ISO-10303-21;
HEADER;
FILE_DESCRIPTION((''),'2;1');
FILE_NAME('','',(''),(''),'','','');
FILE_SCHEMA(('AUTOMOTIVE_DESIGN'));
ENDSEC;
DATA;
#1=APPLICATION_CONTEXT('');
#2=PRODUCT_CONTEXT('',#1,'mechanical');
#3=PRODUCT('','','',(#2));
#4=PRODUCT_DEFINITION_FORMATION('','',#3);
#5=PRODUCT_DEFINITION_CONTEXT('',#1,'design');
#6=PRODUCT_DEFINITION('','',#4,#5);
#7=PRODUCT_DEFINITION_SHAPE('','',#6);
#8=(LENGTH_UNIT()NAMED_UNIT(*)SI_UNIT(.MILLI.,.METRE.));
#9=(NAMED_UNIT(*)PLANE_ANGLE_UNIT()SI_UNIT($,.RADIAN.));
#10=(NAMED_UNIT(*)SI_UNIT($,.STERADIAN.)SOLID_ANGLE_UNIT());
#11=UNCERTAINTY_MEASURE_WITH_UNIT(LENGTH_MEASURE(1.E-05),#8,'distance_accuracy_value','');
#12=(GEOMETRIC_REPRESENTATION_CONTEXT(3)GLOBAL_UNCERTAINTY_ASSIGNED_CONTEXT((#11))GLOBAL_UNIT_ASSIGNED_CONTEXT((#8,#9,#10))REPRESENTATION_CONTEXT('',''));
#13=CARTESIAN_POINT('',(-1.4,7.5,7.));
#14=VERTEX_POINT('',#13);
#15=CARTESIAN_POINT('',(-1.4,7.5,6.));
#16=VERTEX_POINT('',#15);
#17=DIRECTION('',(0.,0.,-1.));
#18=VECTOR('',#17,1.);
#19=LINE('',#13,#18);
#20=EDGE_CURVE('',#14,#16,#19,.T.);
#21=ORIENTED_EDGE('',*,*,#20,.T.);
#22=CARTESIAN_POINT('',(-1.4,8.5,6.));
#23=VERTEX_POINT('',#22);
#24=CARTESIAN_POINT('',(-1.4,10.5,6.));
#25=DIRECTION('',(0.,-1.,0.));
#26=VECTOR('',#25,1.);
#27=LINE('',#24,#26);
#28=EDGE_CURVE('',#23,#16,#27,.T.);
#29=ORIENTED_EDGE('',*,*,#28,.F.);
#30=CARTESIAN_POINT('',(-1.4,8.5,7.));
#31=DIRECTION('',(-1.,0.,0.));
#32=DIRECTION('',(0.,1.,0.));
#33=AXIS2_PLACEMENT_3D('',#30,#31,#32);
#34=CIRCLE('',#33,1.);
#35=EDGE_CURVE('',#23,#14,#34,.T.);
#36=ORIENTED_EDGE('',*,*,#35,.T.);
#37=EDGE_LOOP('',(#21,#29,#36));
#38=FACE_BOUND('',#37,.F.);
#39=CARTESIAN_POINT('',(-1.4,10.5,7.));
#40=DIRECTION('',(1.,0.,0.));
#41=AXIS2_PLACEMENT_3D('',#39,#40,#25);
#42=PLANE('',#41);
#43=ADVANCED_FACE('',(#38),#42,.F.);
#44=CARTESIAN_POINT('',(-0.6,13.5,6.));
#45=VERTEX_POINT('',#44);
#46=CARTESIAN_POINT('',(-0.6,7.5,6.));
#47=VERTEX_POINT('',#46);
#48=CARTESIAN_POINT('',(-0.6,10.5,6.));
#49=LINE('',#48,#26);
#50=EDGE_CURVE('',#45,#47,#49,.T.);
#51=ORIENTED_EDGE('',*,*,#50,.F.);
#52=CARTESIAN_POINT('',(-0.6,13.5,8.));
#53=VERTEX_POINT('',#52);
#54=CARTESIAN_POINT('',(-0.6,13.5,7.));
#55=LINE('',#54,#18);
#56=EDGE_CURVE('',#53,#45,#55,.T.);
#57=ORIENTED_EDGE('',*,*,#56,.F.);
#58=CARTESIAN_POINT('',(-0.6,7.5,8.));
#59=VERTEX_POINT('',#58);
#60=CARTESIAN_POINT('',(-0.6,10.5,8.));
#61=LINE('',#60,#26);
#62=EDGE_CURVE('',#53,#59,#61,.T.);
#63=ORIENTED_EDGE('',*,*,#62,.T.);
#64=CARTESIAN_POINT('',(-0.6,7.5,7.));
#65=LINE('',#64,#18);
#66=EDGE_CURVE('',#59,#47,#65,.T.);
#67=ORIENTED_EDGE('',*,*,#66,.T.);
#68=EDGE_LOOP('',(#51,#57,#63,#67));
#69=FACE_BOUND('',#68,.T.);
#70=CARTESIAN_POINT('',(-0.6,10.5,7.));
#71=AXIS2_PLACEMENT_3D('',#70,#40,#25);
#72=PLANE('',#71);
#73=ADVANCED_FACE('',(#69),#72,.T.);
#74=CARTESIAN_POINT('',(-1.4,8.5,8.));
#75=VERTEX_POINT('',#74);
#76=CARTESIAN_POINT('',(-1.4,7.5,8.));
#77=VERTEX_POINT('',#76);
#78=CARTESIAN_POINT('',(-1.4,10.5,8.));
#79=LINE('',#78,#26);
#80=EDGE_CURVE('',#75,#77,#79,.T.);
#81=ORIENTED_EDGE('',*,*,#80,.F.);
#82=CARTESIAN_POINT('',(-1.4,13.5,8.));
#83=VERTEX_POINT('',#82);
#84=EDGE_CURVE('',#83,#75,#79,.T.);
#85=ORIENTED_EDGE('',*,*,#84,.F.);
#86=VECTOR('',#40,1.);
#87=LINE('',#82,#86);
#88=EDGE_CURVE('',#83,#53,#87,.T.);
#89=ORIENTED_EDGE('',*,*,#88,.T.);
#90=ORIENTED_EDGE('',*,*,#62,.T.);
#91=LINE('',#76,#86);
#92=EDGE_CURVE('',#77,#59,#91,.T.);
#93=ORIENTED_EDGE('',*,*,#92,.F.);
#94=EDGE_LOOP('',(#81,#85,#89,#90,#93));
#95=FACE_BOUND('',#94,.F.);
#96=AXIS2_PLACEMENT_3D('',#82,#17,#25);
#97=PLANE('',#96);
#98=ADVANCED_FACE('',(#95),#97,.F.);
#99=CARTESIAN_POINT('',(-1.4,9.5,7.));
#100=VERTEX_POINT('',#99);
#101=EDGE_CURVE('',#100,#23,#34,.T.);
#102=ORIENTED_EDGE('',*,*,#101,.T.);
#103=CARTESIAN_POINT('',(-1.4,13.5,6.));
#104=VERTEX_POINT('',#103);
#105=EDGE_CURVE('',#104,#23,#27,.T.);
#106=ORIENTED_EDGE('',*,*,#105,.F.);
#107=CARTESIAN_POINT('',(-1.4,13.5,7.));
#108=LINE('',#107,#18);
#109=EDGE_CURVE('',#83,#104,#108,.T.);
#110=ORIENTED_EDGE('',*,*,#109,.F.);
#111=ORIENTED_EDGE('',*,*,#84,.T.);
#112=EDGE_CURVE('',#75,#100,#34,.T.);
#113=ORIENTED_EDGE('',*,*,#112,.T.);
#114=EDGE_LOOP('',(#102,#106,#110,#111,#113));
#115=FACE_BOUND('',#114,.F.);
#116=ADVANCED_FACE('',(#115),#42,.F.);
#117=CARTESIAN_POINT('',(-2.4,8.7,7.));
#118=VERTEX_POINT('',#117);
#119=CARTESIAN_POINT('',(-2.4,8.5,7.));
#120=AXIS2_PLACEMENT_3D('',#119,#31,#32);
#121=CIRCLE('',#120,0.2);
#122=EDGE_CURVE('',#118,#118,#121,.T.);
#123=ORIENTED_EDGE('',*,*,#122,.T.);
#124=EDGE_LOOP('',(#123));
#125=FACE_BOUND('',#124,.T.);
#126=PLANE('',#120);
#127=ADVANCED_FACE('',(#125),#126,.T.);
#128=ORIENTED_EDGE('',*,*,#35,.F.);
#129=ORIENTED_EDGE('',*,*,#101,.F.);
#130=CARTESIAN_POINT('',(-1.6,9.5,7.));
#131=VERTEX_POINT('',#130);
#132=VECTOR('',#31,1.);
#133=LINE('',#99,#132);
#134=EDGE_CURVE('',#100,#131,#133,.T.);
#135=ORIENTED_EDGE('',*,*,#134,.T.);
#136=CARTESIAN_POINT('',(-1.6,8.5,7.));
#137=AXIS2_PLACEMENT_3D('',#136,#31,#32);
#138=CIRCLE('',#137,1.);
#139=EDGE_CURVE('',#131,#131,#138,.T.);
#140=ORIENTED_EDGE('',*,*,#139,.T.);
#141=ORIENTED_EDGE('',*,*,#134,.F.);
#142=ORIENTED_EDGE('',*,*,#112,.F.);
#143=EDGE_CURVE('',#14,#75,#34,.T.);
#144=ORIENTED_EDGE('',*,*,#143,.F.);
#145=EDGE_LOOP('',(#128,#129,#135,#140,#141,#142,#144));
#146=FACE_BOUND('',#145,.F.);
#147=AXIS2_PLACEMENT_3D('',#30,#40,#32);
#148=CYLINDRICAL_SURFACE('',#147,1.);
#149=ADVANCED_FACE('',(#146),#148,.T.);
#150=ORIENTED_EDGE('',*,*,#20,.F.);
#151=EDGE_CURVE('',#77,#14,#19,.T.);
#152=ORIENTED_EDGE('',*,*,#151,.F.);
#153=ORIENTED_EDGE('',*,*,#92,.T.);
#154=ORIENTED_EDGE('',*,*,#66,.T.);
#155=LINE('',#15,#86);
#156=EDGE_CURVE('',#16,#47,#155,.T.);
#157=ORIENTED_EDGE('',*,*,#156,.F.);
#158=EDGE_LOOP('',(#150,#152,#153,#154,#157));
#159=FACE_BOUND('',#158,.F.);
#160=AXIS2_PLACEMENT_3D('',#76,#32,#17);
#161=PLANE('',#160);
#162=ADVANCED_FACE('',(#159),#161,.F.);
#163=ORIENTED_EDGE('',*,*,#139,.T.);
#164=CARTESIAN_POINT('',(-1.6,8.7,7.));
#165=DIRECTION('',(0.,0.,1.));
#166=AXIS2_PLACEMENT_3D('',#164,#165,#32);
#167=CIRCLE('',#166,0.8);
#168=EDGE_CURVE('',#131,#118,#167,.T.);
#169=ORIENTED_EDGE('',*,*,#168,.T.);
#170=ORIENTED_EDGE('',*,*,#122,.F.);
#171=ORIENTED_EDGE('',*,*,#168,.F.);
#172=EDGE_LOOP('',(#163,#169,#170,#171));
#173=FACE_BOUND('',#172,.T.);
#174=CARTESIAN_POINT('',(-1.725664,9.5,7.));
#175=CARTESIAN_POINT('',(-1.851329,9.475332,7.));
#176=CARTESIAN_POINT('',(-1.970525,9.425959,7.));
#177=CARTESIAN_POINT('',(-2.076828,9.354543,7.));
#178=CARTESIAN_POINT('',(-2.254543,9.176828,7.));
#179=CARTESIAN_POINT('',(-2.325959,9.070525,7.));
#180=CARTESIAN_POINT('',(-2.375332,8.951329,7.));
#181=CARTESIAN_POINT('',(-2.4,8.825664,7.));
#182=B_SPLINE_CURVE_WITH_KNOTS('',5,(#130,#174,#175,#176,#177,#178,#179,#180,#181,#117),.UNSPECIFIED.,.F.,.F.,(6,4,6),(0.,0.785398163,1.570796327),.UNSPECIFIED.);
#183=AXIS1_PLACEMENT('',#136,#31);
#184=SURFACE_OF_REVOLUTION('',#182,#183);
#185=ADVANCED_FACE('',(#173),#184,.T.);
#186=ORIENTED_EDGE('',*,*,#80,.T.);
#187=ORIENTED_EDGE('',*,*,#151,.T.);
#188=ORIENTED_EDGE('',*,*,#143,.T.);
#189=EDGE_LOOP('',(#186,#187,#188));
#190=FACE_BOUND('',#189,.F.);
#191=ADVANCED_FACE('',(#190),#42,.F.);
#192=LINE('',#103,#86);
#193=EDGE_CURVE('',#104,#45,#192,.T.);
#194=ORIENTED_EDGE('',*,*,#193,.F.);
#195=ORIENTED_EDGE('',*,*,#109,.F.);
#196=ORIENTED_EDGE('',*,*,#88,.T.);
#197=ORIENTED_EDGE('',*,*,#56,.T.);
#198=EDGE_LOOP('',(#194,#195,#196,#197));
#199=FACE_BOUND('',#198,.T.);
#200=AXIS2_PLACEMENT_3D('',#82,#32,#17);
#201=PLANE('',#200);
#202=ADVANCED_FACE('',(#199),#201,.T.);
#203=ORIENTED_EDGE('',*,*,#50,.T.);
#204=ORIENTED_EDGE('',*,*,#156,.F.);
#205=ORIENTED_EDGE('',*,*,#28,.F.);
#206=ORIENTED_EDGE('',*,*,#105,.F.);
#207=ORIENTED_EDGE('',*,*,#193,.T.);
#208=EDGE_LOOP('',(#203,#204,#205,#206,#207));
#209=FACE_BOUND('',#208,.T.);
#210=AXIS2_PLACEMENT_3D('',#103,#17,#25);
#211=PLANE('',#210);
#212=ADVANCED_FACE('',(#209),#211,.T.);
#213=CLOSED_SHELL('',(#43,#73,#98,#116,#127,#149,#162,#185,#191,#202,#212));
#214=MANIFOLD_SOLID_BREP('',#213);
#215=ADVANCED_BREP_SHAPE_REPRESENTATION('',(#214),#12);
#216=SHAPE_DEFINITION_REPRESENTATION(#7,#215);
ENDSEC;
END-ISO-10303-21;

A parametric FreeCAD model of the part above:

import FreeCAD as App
import Part
import Sketcher
from FreeCAD import Vector
Q = App.Units.Quantity


def edges_at(feature, points):
    """Names of the edges that pass closest to the given points."""
    edges = feature.Shape.Edges
    near = lambda p: min(range(len(edges)), key=lambda i: edges[i].distToShape(Part.Vertex(*p))[0])
    return sorted({f"Edge{near(p) + 1}" for p in points})


def add_polygon(sketch, points):
    """Adds a closed chain of lines whose ends are joined by coincident constraints."""
    first, n = sketch.GeometryCount, len(points)
    for a, b in zip(points, points[1:] + points[:1]):
        sketch.addGeometry(Part.LineSegment(App.Vector(*a, 0), App.Vector(*b, 0)), False)
    for i in range(n):
        sketch.addConstraint(Sketcher.Constraint("Coincident", first + i, 2, first + (i + 1) % n, 1))

doc = App.newDocument("Part")
body = doc.addObject("PartDesign::Body", "Body")

# Sketch on YZ plane
sketch1 = body.newObject("Sketcher::SketchObject", "Sketch")
sketch1.AttachmentSupport = (doc.getObject("YZ_Plane"), [""])
sketch1.MapMode = "FlatFace"
sketch1.AttachmentOffset = App.Placement(Vector(0, 0, -3), App.Rotation())
add_polygon(sketch1, [(16, 12), (16, 14), (10, 14), (10, 12)])  # lines 0-3
sketch1.addConstraint([
    Sketcher.Constraint("Vertical", 0),
    Sketcher.Constraint("Horizontal", 1),
    Sketcher.Constraint("Vertical", 2),
    Sketcher.Constraint("Horizontal", 3),
    Sketcher.Constraint("DistanceX", 1, 2, 1, 1, Q("6 mm")),
    Sketcher.Constraint("DistanceY", 0, 1, 0, 2, Q("2 mm")),
    Sketcher.Constraint("DistanceX", -1, 1, 0, 2, Q("16 mm")),
    Sketcher.Constraint("DistanceY", -1, 1, 0, 2, Q("14 mm")),
])
pad1 = body.newObject("PartDesign::Pad", "Pad")
pad1.Profile = sketch1
pad1.Length = 0.8

# Sketch on YZ plane
sketch2 = body.newObject("Sketcher::SketchObject", "Sketch001")
sketch2.AttachmentSupport = (doc.getObject("YZ_Plane"), [""])
sketch2.MapMode = "FlatFace"
sketch2.AttachmentOffset = App.Placement(Vector(0, 0, -3), App.Rotation())
sketch2.addGeometry(Part.Circle(Vector(11, 13, 0), Vector(0, 0, 1), 1), False)
sketch2.addConstraint([
    Sketcher.Constraint("Diameter", 0, Q("2 mm")),
    Sketcher.Constraint("DistanceX", -1, 1, 0, 3, Q("11 mm")),
    Sketcher.Constraint("DistanceY", -1, 1, 0, 3, Q("13 mm")),
])
pad2 = body.newObject("PartDesign::Pad", "Pad001")
pad2.Profile = sketch2
pad2.Length = 1
pad2.Reversed = True
doc.recompute()

fillet = body.newObject("PartDesign::Fillet", "Fillet")
fillet.Base = (pad2, edges_at(pad2, [(-4, 10, 13)]))
fillet.Radius = 0.8
body2 = doc.addObject("PartDesign::Body", "Body001")
doc.recompute()

body.Placement = App.Placement(Vector(-16, 0, 0), App.Rotation(Vector(0, 0, 1), 0))
boolean = body2.newObject("PartDesign::Boolean", "Boolean")
boolean.Type = "Fuse"
boolean.addObjects([body])
body3 = doc.addObject("PartDesign::Body", "Body002")
doc.recompute()

body2.Placement = App.Placement(Vector(17.6, -2.5, -6), App.Rotation(Vector(0, 0, 1), 0))
boolean2 = body3.newObject("PartDesign::Boolean", "Boolean001")
boolean2.Type = "Fuse"
boolean2.addObjects([body2])

doc.recompute()
